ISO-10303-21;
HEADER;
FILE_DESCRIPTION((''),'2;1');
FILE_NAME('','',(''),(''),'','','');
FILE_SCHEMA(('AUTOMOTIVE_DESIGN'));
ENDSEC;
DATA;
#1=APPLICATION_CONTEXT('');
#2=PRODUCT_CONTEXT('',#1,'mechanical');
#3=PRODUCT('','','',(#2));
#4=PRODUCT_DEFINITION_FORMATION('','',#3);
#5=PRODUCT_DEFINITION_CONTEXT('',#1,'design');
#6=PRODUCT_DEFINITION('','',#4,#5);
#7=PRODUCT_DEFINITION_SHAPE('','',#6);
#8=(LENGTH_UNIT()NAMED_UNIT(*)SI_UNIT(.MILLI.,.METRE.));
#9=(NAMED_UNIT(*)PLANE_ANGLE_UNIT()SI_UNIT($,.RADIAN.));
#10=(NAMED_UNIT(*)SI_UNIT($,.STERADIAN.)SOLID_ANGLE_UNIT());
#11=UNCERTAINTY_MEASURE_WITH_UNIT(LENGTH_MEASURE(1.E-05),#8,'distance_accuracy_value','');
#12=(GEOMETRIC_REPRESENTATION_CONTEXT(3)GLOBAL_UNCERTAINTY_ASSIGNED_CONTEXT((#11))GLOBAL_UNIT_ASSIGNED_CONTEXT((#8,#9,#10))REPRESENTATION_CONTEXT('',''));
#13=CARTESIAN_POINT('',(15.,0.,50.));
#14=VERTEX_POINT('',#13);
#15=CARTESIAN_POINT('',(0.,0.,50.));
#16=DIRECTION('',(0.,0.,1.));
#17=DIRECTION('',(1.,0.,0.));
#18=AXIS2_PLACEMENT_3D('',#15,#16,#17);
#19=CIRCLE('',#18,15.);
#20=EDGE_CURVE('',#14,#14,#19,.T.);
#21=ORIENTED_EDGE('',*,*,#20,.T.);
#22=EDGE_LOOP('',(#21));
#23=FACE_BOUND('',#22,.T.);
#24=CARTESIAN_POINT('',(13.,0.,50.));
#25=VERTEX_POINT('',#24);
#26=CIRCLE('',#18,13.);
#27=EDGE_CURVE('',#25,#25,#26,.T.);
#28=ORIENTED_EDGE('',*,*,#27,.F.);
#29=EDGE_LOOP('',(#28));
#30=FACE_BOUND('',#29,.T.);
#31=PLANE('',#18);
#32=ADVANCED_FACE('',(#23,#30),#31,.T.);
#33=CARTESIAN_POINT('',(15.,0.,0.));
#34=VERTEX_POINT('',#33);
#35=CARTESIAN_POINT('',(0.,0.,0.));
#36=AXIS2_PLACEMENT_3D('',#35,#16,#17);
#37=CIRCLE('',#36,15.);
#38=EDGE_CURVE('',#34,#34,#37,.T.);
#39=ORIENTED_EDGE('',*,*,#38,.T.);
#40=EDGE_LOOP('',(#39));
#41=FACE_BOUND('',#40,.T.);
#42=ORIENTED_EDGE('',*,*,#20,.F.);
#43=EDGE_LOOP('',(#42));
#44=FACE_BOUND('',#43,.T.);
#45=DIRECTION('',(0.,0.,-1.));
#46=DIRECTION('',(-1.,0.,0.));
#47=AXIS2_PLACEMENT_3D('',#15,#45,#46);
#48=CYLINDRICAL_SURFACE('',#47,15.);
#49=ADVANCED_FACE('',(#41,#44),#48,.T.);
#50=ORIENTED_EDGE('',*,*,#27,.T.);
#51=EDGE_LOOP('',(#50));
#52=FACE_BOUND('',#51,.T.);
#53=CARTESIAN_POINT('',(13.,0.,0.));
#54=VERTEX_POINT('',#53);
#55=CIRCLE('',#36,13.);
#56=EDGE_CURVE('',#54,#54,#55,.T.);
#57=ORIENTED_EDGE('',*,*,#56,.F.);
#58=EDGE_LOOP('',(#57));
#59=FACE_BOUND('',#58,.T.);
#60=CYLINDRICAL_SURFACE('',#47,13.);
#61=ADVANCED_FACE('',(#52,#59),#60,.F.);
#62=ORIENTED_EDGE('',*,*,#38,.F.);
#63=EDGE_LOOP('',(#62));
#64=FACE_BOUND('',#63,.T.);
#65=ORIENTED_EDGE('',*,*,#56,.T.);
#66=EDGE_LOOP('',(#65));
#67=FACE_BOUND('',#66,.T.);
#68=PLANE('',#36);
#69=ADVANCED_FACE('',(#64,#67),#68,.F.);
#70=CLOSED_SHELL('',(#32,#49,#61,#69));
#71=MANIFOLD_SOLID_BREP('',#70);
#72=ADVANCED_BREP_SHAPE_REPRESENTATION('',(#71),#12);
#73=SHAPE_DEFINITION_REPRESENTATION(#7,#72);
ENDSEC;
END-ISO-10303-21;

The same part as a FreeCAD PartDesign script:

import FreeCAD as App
import Part
import Sketcher

doc = App.newDocument("Part")
body = doc.addObject("PartDesign::Body", "Body")

sketch1 = body.newObject("Sketcher::SketchObject", "Sketch")
sketch1.AttachmentSupport = (doc.getObject("XY_Plane"), [""])
sketch1.MapMode = "FlatFace"
sketch1.addGeometry(Part.Circle(App.Vector(0, 0, 0), App.Vector(0, 0, 1), 15), False)
sketch1.addGeometry(Part.Circle(App.Vector(0, 0, 0), App.Vector(0, 0, 1), 13), False)
sketch1.addConstraint(Sketcher.Constraint("Coincident", 0, 3, -1, 1))
sketch1.addConstraint(Sketcher.Constraint("Coincident", 1, 3, -1, 1))
sketch1.addConstraint(Sketcher.Constraint("Diameter", 0, 30.0))
sketch1.addConstraint(Sketcher.Constraint("Diameter", 1, 26.0))
pad1 = body.newObject("PartDesign::Pad", "Pad")
pad1.Profile = sketch1
pad1.Length = 50

doc.recompute()
